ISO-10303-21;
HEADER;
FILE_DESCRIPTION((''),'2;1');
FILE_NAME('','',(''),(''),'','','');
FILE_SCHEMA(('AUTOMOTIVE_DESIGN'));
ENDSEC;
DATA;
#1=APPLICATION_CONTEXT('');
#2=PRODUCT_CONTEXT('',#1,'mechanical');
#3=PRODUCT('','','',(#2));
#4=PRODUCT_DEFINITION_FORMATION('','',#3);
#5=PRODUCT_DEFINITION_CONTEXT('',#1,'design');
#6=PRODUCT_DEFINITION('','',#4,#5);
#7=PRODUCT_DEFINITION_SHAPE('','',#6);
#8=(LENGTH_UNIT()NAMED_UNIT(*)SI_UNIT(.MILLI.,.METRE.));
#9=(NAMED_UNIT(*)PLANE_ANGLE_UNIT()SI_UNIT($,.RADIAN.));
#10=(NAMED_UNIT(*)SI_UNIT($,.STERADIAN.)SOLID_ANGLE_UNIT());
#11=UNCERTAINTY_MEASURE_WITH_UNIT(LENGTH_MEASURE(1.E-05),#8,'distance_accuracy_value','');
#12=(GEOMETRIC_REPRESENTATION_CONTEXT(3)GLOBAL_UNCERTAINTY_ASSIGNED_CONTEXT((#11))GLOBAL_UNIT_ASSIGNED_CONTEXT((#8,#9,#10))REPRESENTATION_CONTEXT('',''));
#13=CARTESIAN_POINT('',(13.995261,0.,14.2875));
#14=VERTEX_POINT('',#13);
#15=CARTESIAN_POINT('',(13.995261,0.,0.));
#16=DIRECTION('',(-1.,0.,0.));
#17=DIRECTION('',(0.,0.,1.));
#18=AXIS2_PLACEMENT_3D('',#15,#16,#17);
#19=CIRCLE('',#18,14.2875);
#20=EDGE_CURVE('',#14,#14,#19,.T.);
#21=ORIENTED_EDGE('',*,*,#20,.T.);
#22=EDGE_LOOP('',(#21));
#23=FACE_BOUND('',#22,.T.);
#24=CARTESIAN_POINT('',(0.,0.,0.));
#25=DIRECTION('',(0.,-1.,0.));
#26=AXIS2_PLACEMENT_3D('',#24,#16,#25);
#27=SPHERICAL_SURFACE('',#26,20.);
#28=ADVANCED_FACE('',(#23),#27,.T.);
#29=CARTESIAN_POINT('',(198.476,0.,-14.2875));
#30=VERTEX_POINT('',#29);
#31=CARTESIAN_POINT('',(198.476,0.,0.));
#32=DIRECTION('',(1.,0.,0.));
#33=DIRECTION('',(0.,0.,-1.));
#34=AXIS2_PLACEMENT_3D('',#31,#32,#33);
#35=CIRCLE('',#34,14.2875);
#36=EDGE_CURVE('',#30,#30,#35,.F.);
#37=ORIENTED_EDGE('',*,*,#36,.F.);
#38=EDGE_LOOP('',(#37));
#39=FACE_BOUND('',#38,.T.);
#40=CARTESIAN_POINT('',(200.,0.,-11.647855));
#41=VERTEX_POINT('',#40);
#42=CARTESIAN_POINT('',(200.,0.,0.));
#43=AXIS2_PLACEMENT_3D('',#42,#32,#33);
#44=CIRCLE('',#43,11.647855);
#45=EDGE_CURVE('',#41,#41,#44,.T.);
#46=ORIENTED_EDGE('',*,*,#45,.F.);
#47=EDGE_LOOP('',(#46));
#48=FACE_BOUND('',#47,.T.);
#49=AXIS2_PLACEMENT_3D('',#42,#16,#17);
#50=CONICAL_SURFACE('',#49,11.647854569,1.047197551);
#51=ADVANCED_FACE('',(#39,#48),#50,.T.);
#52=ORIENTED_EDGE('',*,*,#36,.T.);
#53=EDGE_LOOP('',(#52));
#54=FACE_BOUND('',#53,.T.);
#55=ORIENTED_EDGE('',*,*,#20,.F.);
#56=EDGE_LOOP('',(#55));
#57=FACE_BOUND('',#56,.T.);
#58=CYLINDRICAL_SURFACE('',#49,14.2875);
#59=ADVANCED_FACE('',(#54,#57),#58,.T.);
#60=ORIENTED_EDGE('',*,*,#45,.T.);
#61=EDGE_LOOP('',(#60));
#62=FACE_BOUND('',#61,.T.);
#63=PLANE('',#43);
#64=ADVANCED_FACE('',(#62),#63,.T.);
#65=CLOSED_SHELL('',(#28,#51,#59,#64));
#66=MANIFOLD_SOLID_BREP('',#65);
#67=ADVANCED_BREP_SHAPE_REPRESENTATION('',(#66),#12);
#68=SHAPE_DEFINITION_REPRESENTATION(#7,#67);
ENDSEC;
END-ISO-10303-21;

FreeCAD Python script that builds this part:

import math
import FreeCAD as App
import Part
import Sketcher
Q = App.Units.Quantity


def edges_at(feature, points):
    """Names of the edges that pass closest to the given points."""
    edges = feature.Shape.Edges
    near = lambda p: min(range(len(edges)), key=lambda i: edges[i].distToShape(Part.Vertex(*p))[0])
    return sorted({f"Edge{near(p) + 1}" for p in points})

doc = App.newDocument("Part")
body = doc.addObject("PartDesign::Body", "Body")

# Sketch on YZ plane
sketch1 = doc.addObject("Sketcher::SketchObject", "Sketch")
body.addObject(sketch1)
sketch1.AttachmentSupport = (doc.YZ_Plane, [""])
sketch1.MapMode = "FlatFace"
sketch1.addGeometry(Part.Circle(App.Vector(0, 0, 0), App.Vector(0, 0, 1), 14), False)
sketch1.addConstraint(Sketcher.Constraint("Coincident", 0, 3, -1, 1))
sketch1.addConstraint(Sketcher.Constraint("Diameter", 0, Q("28.575 mm")))
pad1 = doc.addObject("PartDesign::Pad", "Pad")
body.addObject(pad1)
pad1.Profile = sketch1
pad1.Length = 200
doc.recompute()

chamfer = doc.addObject("PartDesign::Chamfer", "Chamfer")
body.addObject(chamfer)
chamfer.Base = (pad1, edges_at(pad1, [(200, 0, 14.287)]))
chamfer.ChamferType = "Two distances"
chamfer.Size = 1.524
chamfer.Size2 = 2.639645

# Sketch on XY plane
sketch2 = doc.addObject("Sketcher::SketchObject", "Sketch001")
body.addObject(sketch2)
sketch2.AttachmentSupport = (doc.XY_Plane, [""])
sketch2.MapMode = "FlatFace"
sketch2.addGeometry(Part.LineSegment(App.Vector(-20, 0, 0), App.Vector(20, 0, 0)), False)
sketch2.addGeometry(Part.ArcOfCircle(Part.Circle(App.Vector(0, 0, 0), App.Vector(0, 0, 1), 20), math.radians(0), math.radians(180)), False)
sketch2.addConstraint(Sketcher.Constraint("Coincident", 0, 1, 1, 2))
sketch2.addConstraint(Sketcher.Constraint("Coincident", 1, 1, 0, 2))
sketch2.addConstraint(Sketcher.Constraint("Horizontal", 0))
sketch2.addConstraint(Sketcher.Constraint("Coincident", 1, 3, -1, 1))
sketch2.addConstraint(Sketcher.Constraint("PointOnObject", 0, 1, -1))
sketch2.addConstraint(Sketcher.Constraint("Radius", 1, Q("20 mm")))
revolution = doc.addObject("PartDesign::Revolution", "Revolution")
body.addObject(revolution)
revolution.Profile = sketch2
revolution.ReferenceAxis = (sketch2, ["H_Axis"])
revolution.Angle = 360

doc.recompute()
